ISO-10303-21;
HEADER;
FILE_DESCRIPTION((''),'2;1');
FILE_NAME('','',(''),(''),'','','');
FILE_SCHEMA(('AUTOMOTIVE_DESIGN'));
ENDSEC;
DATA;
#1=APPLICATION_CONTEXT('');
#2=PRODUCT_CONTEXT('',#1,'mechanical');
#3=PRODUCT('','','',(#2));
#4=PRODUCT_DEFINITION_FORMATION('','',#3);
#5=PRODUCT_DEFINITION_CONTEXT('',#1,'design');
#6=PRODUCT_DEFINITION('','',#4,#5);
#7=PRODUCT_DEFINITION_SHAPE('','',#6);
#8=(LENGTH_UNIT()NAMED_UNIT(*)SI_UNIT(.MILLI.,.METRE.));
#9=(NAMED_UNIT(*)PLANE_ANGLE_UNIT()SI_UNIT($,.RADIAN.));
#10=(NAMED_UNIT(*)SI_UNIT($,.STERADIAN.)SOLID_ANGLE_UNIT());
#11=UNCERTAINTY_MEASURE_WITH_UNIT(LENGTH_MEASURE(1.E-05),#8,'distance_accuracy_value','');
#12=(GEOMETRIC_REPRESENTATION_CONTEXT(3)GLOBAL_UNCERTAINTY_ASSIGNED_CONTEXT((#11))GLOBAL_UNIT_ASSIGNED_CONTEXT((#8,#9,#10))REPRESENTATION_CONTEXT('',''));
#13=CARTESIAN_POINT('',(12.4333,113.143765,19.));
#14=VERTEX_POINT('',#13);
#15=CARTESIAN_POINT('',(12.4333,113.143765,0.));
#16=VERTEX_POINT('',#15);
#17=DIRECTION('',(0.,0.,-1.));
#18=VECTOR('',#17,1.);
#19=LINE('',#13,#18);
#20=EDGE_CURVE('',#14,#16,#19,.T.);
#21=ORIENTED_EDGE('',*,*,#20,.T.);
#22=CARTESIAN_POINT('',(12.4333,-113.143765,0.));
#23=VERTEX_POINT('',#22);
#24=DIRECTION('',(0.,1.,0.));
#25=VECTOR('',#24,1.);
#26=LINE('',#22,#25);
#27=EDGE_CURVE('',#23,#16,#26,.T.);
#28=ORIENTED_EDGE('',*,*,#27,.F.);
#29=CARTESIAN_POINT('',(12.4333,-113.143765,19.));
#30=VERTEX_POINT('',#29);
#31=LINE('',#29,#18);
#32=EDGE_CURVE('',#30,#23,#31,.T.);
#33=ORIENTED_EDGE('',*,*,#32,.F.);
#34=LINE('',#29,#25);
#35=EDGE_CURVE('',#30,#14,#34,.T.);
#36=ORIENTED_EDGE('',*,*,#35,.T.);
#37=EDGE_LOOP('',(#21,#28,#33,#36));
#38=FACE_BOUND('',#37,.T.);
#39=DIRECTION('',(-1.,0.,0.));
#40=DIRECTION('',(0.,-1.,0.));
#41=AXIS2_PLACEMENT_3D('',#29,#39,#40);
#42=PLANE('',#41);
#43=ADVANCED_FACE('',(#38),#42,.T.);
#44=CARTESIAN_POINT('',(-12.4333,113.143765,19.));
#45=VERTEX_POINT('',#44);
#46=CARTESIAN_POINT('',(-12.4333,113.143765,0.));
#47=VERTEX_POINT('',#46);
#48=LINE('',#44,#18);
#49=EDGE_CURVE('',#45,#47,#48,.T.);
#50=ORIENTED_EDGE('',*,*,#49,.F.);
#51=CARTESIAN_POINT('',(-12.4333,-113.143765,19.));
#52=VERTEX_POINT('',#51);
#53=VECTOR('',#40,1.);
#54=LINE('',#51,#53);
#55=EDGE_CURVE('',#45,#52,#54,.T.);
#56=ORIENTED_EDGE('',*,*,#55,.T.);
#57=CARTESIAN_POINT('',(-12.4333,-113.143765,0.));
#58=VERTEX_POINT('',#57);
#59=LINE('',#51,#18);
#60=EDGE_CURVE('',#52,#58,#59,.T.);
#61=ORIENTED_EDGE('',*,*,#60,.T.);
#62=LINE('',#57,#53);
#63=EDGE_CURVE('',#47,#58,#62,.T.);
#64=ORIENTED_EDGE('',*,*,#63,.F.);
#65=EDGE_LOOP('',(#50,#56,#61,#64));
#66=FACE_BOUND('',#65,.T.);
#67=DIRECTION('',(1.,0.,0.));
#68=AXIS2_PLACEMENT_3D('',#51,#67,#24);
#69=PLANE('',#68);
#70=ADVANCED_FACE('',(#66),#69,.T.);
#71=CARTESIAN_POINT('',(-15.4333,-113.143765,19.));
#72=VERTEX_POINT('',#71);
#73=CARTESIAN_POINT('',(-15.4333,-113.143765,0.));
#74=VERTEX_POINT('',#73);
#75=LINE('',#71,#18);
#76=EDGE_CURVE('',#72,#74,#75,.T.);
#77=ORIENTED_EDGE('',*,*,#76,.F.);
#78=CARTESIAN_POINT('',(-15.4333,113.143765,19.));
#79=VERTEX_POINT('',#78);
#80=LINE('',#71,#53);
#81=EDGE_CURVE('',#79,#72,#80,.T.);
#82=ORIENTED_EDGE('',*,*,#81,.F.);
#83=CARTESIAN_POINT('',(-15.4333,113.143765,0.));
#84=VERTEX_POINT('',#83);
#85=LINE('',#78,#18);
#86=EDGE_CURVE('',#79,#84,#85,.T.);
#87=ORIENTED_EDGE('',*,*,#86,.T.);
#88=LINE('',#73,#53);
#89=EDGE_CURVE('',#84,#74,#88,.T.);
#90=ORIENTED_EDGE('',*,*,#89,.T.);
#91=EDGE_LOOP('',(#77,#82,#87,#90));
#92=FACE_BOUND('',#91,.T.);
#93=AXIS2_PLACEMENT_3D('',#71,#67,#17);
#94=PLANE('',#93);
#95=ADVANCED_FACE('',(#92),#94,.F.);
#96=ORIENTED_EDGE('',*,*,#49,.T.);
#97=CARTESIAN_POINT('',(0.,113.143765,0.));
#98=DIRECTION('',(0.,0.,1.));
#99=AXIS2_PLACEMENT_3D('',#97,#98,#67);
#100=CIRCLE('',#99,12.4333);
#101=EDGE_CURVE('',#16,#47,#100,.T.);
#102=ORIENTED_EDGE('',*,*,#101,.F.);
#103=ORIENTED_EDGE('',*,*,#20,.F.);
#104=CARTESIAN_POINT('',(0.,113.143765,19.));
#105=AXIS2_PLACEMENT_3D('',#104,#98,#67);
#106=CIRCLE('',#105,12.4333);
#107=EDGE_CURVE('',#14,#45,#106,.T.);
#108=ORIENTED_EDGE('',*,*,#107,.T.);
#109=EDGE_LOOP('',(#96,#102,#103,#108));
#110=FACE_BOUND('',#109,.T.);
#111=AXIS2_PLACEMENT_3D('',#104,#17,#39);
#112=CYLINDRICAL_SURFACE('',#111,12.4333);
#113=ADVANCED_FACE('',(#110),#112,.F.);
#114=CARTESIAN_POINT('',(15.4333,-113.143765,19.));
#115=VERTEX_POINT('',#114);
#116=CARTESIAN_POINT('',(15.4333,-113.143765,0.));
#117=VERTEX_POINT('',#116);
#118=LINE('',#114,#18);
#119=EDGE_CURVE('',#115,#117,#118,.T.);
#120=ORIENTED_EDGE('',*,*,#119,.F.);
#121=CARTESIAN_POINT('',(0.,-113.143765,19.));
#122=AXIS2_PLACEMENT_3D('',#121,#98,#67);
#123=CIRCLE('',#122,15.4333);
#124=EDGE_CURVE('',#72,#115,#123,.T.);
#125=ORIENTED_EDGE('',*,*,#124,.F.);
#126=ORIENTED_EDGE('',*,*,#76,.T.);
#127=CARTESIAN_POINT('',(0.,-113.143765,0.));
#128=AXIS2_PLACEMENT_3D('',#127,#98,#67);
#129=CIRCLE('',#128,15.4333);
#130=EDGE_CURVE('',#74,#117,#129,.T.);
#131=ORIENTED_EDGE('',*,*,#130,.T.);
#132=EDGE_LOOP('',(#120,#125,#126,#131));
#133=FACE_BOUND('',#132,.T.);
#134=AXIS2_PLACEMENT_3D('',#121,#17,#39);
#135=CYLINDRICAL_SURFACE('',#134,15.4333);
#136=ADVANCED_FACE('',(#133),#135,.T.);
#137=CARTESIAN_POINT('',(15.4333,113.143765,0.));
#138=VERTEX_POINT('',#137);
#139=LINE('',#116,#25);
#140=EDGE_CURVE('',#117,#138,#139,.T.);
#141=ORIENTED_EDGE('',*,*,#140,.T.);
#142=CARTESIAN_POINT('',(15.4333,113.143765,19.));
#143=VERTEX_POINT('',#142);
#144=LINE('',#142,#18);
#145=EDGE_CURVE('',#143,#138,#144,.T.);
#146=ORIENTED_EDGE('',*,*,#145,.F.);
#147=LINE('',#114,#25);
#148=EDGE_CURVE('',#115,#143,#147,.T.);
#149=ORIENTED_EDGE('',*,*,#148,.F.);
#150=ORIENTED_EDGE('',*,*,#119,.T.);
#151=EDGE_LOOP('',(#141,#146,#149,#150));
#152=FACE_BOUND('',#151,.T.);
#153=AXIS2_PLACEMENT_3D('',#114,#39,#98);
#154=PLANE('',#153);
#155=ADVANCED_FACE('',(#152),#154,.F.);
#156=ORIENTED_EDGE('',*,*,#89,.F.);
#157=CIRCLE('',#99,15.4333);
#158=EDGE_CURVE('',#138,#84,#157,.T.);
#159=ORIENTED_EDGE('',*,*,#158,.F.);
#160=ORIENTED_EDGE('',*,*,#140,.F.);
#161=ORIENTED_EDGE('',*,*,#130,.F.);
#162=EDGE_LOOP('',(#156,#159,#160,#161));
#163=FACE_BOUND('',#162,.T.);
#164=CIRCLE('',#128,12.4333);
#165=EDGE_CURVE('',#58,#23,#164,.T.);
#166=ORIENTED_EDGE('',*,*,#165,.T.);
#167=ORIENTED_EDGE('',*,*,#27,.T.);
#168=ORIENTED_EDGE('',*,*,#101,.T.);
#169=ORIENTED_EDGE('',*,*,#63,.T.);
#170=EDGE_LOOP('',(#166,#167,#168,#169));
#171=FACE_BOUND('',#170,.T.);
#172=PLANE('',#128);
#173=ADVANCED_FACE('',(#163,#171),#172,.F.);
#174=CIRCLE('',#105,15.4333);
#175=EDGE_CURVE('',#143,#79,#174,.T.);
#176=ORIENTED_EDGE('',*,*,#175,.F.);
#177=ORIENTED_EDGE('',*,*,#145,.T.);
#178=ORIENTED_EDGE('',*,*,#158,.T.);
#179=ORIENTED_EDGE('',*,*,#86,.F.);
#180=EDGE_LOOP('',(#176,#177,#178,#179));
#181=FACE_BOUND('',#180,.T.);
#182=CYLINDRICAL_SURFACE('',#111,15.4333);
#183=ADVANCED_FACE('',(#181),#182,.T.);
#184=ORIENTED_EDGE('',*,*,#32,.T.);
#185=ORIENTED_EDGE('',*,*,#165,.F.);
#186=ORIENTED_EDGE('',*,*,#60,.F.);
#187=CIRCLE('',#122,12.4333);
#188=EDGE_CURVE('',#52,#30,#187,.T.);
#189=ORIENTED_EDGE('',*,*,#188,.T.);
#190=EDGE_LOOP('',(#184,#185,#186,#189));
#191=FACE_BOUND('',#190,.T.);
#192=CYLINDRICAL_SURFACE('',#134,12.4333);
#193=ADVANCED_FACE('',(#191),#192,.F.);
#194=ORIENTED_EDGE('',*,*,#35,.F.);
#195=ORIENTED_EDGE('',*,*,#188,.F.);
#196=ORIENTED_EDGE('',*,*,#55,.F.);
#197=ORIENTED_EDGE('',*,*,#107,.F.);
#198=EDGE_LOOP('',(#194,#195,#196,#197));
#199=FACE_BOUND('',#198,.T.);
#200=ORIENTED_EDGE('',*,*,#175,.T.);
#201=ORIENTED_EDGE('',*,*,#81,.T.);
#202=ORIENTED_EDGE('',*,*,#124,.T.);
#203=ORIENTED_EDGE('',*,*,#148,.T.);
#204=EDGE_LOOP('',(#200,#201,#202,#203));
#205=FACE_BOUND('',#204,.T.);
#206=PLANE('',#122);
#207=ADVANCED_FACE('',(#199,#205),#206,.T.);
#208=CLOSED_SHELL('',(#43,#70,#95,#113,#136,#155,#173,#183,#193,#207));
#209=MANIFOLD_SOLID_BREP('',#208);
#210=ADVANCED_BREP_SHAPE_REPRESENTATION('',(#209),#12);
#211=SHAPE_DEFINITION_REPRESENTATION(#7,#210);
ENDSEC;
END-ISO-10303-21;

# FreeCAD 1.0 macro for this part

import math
import FreeCAD as App
import Part
import Sketcher
from FreeCAD import Vector

doc = App.newDocument("Part")
body = doc.addObject("PartDesign::Body", "Body")

# Sketch on XY plane
sketch1 = doc.addObject("Sketcher::SketchObject", "Sketch")
body.addObject(sketch1)
sketch1.AttachmentSupport = (doc.XY_Plane, [""])
sketch1.MapMode = "FlatFace"
sketch1.addGeometry([
    Part.LineSegment(Vector(-15, 113, 0), Vector(-15, -113, 0)),  # 0
    Part.ArcOfCircle(Part.Circle(Vector(0, -113, 0), Vector(0, 0, 1), 15), math.radians(180), math.radians(360)),  # 1
    Part.LineSegment(Vector(15, -113, 0), Vector(15, 113, 0)),  # 2
    Part.ArcOfCircle(Part.Circle(Vector(0, 113, 0), Vector(0, 0, 1), 15), math.radians(0), math.radians(180)),  # 3
    Part.LineSegment(Vector(-12, -113, 0), Vector(-12, 113, 0)),  # 4
    Part.ArcOfCircle(Part.Circle(Vector(0, 113, 0), Vector(0, 0, 1), 12), math.radians(0), math.radians(180)),  # 5
    Part.LineSegment(Vector(12, 113, 0), Vector(12, -113, 0)),  # 6
    Part.ArcOfCircle(Part.Circle(Vector(0, -113, 0), Vector(0, 0, 1), 12), math.radians(180), math.radians(360)),  # 7
], False)
sketch1.addConstraint([
    Sketcher.Constraint("Tangent", 0, 2, 1, 1),
    Sketcher.Constraint("Tangent", 1, 2, 2, 1),
    Sketcher.Constraint("Tangent", 2, 2, 3, 1),
    Sketcher.Constraint("Tangent", 3, 2, 0, 1),
    Sketcher.Constraint("Tangent", 4, 2, 5, 2),
    Sketcher.Constraint("Tangent", 5, 1, 6, 1),
    Sketcher.Constraint("Tangent", 6, 2, 7, 2),
    Sketcher.Constraint("Tangent", 7, 1, 4, 1),
    Sketcher.Constraint("Vertical", 0),
    Sketcher.Constraint("Vertical", 2),
    Sketcher.Constraint("Vertical", 4),
    Sketcher.Constraint("Vertical", 6),
    Sketcher.Constraint("Coincident", 5, 3, 3, 3),
    Sketcher.Constraint("Symmetric", 1, 3, 3, 3, -1, 1),
    Sketcher.Constraint("Horizontal", 7, 3, 0, 2),
    Sketcher.Constraint("DistanceX", 3, 2, 4, 2, 3.0),
    Sketcher.Constraint("Radius", 1, 15.4333),
    Sketcher.Constraint("DistanceY", 0, 2, 0, 1, 226.287529),
])
pad1 = doc.addObject("PartDesign::Pad", "Pad")
body.addObject(pad1)
pad1.Profile = sketch1
pad1.Length = 19

doc.recompute()
